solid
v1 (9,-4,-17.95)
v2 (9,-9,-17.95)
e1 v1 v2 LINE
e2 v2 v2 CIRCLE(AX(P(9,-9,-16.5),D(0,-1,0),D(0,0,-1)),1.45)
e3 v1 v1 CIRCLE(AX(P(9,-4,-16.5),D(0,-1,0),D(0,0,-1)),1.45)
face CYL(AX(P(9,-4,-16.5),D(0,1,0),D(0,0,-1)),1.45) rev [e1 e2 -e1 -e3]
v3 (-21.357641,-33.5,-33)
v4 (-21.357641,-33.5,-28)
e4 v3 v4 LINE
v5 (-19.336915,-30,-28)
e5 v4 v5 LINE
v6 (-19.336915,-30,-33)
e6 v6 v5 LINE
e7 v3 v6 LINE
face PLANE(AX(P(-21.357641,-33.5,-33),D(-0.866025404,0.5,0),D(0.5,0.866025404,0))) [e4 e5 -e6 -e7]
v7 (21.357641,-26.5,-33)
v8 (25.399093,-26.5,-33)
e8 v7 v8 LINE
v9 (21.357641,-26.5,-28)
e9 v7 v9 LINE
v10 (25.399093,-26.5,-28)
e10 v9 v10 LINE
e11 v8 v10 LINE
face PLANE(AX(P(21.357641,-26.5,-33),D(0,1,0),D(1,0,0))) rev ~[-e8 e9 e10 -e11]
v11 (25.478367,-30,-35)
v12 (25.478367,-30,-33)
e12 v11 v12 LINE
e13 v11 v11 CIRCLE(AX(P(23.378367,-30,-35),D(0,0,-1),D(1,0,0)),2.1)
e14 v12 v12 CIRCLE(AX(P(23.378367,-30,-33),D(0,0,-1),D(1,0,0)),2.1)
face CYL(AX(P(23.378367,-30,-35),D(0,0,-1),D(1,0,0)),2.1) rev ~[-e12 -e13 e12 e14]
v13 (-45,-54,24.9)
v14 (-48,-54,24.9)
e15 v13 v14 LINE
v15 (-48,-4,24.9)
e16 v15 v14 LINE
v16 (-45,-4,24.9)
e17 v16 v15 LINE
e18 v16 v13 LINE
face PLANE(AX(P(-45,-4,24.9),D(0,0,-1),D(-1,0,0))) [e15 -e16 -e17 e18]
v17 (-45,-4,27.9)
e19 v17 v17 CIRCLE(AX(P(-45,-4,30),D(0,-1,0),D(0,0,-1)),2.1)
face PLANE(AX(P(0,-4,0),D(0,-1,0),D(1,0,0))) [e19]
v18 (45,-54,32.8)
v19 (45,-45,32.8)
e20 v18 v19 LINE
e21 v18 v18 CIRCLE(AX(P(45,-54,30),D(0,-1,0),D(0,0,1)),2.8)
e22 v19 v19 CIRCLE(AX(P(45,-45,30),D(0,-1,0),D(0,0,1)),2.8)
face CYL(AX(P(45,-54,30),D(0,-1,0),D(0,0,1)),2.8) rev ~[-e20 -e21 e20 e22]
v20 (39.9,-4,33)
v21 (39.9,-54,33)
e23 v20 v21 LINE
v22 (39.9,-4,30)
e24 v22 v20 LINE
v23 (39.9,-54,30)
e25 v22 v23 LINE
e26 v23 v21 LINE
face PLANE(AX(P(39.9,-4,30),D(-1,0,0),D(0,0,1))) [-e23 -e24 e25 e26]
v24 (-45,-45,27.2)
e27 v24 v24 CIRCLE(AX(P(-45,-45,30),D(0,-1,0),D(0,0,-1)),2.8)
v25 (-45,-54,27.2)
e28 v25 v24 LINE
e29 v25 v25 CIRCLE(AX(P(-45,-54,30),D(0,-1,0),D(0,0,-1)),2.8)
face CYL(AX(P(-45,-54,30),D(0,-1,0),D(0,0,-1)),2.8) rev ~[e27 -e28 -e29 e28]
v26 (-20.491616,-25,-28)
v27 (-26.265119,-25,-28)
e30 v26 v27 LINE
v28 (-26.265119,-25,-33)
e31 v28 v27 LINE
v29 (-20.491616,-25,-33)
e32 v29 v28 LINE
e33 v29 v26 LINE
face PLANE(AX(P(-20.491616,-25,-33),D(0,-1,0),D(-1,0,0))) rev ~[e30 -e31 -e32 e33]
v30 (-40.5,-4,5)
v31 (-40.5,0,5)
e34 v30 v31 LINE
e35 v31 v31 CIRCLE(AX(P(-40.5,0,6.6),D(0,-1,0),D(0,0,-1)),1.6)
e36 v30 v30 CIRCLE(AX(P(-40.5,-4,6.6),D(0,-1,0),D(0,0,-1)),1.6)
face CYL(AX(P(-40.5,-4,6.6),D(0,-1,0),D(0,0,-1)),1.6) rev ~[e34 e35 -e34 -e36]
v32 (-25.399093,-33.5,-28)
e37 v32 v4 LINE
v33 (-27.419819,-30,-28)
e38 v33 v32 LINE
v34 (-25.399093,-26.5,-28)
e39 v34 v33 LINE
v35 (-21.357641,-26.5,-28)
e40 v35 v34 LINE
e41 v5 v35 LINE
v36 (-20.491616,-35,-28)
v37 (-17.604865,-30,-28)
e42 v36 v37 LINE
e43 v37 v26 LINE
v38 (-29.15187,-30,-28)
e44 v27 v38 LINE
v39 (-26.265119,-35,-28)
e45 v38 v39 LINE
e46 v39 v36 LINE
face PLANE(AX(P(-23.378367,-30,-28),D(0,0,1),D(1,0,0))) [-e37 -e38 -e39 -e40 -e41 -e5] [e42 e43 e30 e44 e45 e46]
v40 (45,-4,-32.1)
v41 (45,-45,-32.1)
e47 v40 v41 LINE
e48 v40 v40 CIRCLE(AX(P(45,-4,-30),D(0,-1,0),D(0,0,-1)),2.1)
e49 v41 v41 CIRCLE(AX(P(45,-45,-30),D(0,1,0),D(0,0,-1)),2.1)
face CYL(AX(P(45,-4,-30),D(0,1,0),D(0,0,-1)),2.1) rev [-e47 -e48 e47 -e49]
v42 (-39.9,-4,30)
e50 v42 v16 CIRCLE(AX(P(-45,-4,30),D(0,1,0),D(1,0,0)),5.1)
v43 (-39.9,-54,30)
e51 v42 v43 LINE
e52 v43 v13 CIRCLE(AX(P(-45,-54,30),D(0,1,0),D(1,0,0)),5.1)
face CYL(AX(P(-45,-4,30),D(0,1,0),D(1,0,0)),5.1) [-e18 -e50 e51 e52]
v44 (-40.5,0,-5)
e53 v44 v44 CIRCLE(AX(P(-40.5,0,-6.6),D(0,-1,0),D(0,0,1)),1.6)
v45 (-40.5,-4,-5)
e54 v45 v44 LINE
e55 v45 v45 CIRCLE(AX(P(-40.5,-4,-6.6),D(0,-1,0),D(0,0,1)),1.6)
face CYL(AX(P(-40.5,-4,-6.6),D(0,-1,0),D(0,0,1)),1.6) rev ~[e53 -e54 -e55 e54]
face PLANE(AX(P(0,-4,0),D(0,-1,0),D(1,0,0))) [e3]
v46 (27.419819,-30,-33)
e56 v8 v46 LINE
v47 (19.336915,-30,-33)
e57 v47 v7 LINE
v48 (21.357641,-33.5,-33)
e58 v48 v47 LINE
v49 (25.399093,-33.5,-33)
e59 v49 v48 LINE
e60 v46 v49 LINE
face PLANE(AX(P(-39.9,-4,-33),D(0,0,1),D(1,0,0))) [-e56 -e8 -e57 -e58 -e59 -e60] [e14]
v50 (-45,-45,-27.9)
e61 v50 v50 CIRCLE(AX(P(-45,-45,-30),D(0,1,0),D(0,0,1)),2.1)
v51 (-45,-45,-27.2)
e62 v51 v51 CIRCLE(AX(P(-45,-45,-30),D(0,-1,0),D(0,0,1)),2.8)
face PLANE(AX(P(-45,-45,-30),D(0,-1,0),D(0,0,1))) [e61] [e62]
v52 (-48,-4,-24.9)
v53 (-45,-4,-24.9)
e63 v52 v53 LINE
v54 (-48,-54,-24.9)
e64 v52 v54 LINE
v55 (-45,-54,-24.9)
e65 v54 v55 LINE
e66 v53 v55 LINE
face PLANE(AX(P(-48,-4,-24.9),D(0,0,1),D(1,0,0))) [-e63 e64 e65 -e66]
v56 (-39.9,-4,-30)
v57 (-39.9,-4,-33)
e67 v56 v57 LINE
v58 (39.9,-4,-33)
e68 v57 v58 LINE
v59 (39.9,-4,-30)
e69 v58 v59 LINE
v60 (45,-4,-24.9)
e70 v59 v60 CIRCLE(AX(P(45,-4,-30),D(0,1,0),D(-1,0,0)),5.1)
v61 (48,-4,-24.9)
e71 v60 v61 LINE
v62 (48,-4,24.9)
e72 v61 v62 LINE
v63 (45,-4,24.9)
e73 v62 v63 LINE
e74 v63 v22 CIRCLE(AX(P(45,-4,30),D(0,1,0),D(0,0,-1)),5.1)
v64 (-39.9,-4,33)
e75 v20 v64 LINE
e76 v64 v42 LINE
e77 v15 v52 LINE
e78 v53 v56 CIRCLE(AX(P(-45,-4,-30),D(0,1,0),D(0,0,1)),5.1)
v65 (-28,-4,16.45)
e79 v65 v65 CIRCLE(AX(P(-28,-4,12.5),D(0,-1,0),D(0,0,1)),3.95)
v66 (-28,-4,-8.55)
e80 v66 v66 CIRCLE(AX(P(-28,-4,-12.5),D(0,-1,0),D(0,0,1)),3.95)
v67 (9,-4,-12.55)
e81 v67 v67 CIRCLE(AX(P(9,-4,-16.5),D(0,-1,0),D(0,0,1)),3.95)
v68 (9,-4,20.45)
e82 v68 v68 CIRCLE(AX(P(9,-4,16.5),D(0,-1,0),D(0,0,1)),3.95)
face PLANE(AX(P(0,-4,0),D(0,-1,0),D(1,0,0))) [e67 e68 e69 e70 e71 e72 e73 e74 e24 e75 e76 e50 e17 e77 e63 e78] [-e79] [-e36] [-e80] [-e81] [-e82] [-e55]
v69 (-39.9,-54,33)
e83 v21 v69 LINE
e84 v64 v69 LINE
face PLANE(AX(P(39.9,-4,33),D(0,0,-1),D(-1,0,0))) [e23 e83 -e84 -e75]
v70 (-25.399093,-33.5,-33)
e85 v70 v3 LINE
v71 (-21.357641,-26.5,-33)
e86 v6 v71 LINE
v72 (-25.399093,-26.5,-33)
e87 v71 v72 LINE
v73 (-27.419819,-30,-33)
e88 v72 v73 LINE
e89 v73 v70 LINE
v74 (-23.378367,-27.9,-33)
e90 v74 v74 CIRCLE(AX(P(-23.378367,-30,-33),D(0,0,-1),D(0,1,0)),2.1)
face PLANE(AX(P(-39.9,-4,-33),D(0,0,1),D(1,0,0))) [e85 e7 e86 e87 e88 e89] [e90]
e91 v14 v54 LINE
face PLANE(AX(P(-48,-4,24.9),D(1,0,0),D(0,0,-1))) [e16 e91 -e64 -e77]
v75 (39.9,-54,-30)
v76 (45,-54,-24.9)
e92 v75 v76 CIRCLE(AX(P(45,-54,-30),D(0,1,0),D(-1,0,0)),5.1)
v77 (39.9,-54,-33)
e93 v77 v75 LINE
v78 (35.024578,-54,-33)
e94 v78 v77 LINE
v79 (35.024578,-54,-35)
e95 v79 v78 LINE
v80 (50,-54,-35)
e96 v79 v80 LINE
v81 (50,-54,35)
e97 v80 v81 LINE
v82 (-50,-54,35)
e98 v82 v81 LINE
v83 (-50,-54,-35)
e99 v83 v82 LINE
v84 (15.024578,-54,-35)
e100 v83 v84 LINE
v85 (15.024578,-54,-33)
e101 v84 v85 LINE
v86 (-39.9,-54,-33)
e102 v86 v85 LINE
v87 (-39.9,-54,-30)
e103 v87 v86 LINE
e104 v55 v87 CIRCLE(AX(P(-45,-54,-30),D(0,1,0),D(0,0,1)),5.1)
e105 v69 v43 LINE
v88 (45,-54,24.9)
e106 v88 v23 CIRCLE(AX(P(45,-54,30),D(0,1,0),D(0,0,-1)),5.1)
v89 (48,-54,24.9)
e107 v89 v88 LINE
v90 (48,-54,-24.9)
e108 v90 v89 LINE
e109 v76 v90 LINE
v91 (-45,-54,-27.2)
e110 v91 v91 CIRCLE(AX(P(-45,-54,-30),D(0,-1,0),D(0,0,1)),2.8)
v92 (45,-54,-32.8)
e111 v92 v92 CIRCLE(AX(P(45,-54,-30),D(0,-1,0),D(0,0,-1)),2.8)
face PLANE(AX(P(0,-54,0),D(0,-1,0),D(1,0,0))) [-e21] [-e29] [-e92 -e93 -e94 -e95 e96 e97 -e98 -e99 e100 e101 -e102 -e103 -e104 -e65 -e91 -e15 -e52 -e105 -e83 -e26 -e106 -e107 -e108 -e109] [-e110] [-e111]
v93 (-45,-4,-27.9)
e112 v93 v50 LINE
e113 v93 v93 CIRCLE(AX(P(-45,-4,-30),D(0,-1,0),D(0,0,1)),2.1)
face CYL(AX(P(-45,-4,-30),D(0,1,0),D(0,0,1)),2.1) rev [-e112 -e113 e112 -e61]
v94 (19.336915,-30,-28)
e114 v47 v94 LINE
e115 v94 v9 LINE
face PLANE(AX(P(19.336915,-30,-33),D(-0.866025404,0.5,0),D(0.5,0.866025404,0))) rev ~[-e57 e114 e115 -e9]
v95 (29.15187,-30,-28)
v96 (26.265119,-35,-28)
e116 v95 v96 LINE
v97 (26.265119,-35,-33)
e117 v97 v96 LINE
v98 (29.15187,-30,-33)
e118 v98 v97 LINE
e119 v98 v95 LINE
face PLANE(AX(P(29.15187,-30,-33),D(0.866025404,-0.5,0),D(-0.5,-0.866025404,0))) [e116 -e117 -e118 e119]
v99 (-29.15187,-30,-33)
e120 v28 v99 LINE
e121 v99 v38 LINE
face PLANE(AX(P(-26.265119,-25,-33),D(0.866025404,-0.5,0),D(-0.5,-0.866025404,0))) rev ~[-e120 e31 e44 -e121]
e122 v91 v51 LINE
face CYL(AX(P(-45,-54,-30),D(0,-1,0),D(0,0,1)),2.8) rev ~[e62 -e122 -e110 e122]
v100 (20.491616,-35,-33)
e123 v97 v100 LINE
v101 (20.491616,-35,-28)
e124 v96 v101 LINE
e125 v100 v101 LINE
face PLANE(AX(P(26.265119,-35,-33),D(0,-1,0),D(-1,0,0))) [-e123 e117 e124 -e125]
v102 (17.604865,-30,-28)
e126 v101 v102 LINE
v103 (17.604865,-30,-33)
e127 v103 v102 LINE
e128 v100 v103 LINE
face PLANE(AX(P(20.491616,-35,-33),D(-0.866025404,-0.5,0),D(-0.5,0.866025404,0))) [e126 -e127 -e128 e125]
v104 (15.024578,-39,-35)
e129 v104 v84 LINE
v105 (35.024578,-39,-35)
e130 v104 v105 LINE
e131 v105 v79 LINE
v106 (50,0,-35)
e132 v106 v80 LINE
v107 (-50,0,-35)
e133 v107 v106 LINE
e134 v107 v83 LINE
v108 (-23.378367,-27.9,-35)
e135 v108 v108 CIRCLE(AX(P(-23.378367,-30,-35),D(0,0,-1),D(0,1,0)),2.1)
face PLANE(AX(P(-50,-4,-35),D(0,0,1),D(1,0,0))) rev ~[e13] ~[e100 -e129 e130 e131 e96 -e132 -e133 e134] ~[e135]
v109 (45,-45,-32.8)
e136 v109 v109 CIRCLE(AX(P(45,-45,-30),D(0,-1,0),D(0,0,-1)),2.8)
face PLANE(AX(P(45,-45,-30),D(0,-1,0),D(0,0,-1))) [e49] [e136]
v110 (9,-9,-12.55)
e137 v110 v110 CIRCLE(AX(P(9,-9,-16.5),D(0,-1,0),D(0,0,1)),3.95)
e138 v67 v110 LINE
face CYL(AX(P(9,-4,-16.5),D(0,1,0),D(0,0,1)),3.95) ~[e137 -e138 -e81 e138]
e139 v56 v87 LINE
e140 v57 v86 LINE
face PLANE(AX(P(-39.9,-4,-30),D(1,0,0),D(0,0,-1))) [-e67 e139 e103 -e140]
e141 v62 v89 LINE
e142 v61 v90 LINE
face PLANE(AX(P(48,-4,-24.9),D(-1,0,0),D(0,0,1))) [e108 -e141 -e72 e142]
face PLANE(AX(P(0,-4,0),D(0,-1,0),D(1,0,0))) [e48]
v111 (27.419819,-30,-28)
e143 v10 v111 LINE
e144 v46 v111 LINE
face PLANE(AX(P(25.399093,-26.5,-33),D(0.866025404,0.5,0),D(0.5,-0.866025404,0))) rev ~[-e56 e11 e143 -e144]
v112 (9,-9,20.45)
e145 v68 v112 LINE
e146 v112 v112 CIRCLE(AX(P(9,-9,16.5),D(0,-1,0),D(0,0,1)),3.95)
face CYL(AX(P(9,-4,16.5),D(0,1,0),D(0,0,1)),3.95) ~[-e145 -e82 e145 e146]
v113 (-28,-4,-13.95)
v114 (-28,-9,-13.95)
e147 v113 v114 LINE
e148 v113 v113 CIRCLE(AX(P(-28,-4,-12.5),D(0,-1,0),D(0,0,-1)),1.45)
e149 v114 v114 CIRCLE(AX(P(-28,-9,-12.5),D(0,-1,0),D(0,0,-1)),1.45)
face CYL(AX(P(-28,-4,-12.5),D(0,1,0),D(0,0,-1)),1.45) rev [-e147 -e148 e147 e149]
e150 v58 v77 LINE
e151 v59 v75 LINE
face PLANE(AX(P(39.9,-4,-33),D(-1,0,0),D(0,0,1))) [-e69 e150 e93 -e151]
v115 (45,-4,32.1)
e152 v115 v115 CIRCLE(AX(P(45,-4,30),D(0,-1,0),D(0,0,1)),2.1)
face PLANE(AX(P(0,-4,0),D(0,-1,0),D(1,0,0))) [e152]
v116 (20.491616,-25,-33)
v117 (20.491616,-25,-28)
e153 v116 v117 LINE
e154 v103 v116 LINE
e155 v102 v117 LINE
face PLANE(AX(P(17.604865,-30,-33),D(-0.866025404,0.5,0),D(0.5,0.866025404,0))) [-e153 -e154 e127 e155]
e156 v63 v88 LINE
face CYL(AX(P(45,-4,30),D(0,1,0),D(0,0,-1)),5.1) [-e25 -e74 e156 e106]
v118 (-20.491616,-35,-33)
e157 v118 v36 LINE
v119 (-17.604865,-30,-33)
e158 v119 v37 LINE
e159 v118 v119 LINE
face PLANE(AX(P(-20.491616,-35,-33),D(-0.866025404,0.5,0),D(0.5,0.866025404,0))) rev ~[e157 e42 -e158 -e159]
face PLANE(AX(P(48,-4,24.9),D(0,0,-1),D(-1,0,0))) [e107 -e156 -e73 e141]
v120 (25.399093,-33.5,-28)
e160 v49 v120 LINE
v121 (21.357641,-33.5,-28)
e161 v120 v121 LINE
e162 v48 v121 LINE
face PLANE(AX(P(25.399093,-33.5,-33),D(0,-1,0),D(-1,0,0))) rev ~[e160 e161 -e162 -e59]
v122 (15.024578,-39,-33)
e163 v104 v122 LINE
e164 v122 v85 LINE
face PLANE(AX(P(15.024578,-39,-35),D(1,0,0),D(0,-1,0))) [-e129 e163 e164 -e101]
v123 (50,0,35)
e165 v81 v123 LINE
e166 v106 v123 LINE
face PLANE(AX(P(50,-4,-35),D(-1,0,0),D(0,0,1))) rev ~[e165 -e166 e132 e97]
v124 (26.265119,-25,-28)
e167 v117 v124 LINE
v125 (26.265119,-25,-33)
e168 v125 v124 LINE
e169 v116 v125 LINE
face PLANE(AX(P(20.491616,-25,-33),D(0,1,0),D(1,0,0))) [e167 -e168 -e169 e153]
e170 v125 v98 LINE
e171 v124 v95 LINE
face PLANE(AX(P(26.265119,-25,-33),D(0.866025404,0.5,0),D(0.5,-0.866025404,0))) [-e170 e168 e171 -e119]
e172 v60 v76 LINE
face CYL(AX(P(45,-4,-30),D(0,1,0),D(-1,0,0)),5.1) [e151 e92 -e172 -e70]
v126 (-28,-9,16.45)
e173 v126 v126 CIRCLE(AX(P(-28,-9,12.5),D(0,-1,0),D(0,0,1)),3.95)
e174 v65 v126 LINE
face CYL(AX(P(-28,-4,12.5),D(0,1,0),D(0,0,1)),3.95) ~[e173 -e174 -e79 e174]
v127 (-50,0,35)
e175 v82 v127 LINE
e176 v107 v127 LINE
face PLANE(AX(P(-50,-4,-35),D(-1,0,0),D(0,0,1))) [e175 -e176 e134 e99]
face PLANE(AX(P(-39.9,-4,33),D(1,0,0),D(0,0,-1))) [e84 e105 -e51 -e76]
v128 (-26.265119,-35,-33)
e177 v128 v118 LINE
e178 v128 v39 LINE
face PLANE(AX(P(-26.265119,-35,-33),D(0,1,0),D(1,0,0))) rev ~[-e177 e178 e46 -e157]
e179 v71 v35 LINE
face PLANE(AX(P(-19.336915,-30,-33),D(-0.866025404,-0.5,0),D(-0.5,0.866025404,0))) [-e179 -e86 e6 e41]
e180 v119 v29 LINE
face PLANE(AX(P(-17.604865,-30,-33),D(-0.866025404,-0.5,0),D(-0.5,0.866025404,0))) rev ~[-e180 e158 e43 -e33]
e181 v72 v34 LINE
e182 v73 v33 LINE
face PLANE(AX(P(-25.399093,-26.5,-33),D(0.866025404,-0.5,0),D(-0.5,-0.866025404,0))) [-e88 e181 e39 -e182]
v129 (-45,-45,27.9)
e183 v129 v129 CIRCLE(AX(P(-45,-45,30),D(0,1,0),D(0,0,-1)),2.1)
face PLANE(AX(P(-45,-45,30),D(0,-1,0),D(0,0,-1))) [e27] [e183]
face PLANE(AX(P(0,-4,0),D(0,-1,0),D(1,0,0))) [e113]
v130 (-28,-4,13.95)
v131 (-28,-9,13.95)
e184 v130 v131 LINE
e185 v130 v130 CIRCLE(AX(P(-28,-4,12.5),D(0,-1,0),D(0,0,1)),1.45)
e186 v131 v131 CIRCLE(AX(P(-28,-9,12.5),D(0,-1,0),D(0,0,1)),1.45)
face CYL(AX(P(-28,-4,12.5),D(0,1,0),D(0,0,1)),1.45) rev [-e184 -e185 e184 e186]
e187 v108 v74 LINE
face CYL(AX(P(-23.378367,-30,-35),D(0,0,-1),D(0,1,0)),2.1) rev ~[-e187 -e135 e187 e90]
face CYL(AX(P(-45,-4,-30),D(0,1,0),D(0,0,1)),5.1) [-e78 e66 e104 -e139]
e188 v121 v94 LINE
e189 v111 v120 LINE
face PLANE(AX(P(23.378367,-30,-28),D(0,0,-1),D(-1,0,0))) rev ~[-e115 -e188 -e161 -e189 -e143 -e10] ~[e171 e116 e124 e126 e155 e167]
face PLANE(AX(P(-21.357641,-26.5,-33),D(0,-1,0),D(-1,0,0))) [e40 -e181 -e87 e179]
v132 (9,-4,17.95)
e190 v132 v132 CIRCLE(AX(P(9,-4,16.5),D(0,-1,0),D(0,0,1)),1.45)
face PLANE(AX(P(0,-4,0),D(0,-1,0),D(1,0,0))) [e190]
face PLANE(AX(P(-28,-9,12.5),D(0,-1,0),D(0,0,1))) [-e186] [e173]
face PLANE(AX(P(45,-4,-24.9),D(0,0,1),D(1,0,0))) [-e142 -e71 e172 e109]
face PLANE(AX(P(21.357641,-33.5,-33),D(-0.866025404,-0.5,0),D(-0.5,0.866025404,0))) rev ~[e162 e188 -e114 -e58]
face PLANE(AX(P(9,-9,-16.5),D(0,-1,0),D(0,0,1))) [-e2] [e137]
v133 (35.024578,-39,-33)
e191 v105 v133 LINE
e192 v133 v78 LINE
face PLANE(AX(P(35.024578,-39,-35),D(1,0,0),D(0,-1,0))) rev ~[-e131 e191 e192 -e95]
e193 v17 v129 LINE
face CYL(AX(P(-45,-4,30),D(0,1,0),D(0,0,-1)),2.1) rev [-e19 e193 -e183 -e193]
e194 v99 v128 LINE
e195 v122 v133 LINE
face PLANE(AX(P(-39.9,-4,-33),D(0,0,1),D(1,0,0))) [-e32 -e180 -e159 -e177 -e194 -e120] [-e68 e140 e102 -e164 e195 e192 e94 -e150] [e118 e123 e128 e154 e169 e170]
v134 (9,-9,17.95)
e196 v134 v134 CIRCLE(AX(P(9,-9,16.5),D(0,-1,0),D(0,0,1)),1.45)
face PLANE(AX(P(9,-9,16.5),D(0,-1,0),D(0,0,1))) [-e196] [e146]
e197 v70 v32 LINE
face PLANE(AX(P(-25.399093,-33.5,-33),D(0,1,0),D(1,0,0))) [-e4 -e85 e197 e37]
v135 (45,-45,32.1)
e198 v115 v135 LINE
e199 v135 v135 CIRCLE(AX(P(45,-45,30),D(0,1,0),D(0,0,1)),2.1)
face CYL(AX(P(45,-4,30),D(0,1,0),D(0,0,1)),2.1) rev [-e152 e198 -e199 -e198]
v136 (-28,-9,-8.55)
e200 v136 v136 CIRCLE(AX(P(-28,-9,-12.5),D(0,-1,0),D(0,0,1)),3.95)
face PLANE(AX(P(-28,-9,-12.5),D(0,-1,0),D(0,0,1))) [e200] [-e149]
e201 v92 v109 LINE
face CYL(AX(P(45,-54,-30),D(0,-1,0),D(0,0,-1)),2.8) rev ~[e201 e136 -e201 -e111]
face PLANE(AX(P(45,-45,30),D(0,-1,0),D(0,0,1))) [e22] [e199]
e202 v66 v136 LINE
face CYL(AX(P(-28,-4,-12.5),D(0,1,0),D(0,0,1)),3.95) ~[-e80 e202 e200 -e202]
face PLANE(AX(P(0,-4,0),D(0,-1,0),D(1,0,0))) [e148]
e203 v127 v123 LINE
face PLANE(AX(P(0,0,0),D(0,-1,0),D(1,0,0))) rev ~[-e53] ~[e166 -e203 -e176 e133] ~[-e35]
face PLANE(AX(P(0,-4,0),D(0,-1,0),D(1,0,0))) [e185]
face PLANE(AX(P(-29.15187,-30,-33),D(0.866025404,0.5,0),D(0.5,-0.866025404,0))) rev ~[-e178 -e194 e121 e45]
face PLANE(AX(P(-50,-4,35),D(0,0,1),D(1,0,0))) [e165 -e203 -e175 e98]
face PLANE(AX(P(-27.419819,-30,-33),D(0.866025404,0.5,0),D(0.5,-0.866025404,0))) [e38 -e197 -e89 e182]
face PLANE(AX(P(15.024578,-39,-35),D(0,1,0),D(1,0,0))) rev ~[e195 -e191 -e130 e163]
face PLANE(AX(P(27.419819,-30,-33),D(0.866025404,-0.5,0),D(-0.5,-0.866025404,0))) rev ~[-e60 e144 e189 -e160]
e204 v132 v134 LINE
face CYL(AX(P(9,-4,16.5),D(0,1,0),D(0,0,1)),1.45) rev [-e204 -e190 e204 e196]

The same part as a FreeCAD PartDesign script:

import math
import FreeCAD as App
import Part
import Sketcher
Q = App.Units.Quantity

doc = App.newDocument("Part")
body = doc.addObject("PartDesign::Body", "Body")

sketch1 = body.newObject("Sketcher::SketchObject", "Sketch")
sketch1.AttachmentSupport = (doc.getObject("XZ_Plane"), [""])
sketch1.MapMode = "FlatFace"
sketch1.addGeometry(Part.LineSegment(App.Vector(-50, 35, 0), App.Vector(-50, -35, 0)), False)
sketch1.addGeometry(Part.LineSegment(App.Vector(-50, -35, 0), App.Vector(50, -35, 0)), False)
sketch1.addGeometry(Part.LineSegment(App.Vector(50, -35, 0), App.Vector(50, 35, 0)), False)
sketch1.addGeometry(Part.LineSegment(App.Vector(50, 35, 0), App.Vector(-50, 35, 0)), False)
sketch1.addConstraint(Sketcher.Constraint("Coincident", 0, 2, 1, 1))
sketch1.addConstraint(Sketcher.Constraint("Coincident", 1, 2, 2, 1))
sketch1.addConstraint(Sketcher.Constraint("Coincident", 2, 2, 3, 1))
sketch1.addConstraint(Sketcher.Constraint("Coincident", 3, 2, 0, 1))
sketch1.addConstraint(Sketcher.Constraint("Vertical", 0))
sketch1.addConstraint(Sketcher.Constraint("Horizontal", 1))
sketch1.addConstraint(Sketcher.Constraint("Vertical", 2))
sketch1.addConstraint(Sketcher.Constraint("Horizontal", 3))
sketch1.addConstraint(Sketcher.Constraint("Symmetric", 0, 2, 2, 2, -1, 1))
sketch1.addConstraint(Sketcher.Constraint("DistanceX", 1, 1, 1, 2, 100.0))
sketch1.addConstraint(Sketcher.Constraint("DistanceY", 0, 2, 0, 1, 70.0))
pad1 = body.newObject("PartDesign::Pad", "Pad")
pad1.Profile = sketch1
pad1.Length = 4

sketch2 = body.newObject("Sketcher::SketchObject", "Sketch001")
sketch2.AttachmentSupport = (doc.getObject("XZ_Plane"), [""])
sketch2.MapMode = "FlatFace"
sketch2.AttachmentOffset = App.Placement(App.Vector(0, 0, 4), App.Rotation())
sketch2.addGeometry(Part.LineSegment(App.Vector(-50, 35, 0), App.Vector(-50, -35, 0)), False)
sketch2.addGeometry(Part.LineSegment(App.Vector(-50, -35, 0), App.Vector(50, -35, 0)), False)
sketch2.addGeometry(Part.LineSegment(App.Vector(50, -35, 0), App.Vector(50, 35, 0)), False)
sketch2.addGeometry(Part.LineSegment(App.Vector(50, 35, 0), App.Vector(-50, 35, 0)), False)
sketch2.addGeometry(Part.Circle(App.Vector(-45, -30, 0), App.Vector(0, 0, 1), 2.1), False)
sketch2.addGeometry(Part.Circle(App.Vector(45, -30, 0), App.Vector(0, 0, 1), 2.1), False)
sketch2.addGeometry(Part.Circle(App.Vector(-45, 30, 0), App.Vector(0, 0, 1), 2.1), False)
sketch2.addGeometry(Part.LineSegment(App.Vector(-48, -24.9, 0), App.Vector(-48, 24.9, 0)), False)
sketch2.addGeometry(Part.LineSegment(App.Vector(-48, 24.9, 0), App.Vector(-45, 24.9, 0)), False)
sketch2.addGeometry(Part.ArcOfCircle(Part.Circle(App.Vector(-45, 30, 0), App.Vector(0, 0, 1), 5.1), math.radians(-90), math.radians(0)), False)
sketch2.addGeometry(Part.LineSegment(App.Vector(-39.9, 30, 0), App.Vector(-39.9, 33, 0)), False)
sketch2.addGeometry(Part.LineSegment(App.Vector(-39.9, 33, 0), App.Vector(39.9, 33, 0)), False)
sketch2.addGeometry(Part.LineSegment(App.Vector(39.9, 33, 0), App.Vector(39.9, 30, 0)), False)
sketch2.addGeometry(Part.ArcOfCircle(Part.Circle(App.Vector(45, 30, 0), App.Vector(0, 0, 1), 5.1), math.radians(180), math.radians(270)), False)
sketch2.addGeometry(Part.LineSegment(App.Vector(45, 24.9, 0), App.Vector(48, 24.9, 0)), False)
sketch2.addGeometry(Part.LineSegment(App.Vector(48, 24.9, 0), App.Vector(48, -24.9, 0)), False)
sketch2.addGeometry(Part.LineSegment(App.Vector(48, -24.9, 0), App.Vector(45, -24.9, 0)), False)
sketch2.addGeometry(Part.ArcOfCircle(Part.Circle(App.Vector(45, -30, 0), App.Vector(0, 0, 1), 5.1), math.radians(90), math.radians(180)), False)
sketch2.addGeometry(Part.LineSegment(App.Vector(39.9, -30, 0), App.Vector(39.9, -33, 0)), False)
sketch2.addGeometry(Part.LineSegment(App.Vector(39.9, -33, 0), App.Vector(-39.9, -33, 0)), False)
sketch2.addGeometry(Part.LineSegment(App.Vector(-39.9, -33, 0), App.Vector(-39.9, -30, 0)), False)
sketch2.addGeometry(Part.ArcOfCircle(Part.Circle(App.Vector(-45, -30, 0), App.Vector(0, 0, 1), 5.1), math.radians(0), math.radians(90)), False)
sketch2.addGeometry(Part.LineSegment(App.Vector(-45, -24.9, 0), App.Vector(-48, -24.9, 0)), False)
sketch2.addGeometry(Part.Circle(App.Vector(45, 30, 0), App.Vector(0, 0, 1), 2.1), False)
sketch2.addConstraint(Sketcher.Constraint("Coincident", 0, 2, 1, 1))
sketch2.addConstraint(Sketcher.Constraint("Coincident", 1, 2, 2, 1))
sketch2.addConstraint(Sketcher.Constraint("Coincident", 2, 2, 3, 1))
sketch2.addConstraint(Sketcher.Constraint("Coincident", 3, 2, 0, 1))
sketch2.addConstraint(Sketcher.Constraint("Coincident", 7, 2, 8, 1))
sketch2.addConstraint(Sketcher.Constraint("Tangent", 8, 2, 9, 1))
sketch2.addConstraint(Sketcher.Constraint("Tangent", 9, 2, 10, 1))
sketch2.addConstraint(Sketcher.Constraint("Coincident", 10, 2, 11, 1))
sketch2.addConstraint(Sketcher.Constraint("Coincident", 11, 2, 12, 1))
sketch2.addConstraint(Sketcher.Constraint("Tangent", 12, 2, 13, 1))
sketch2.addConstraint(Sketcher.Constraint("Tangent", 13, 2, 14, 1))
sketch2.addConstraint(Sketcher.Constraint("Coincident", 14, 2, 15, 1))
sketch2.addConstraint(Sketcher.Constraint("Coincident", 15, 2, 16, 1))
sketch2.addConstraint(Sketcher.Constraint("Tangent", 16, 2, 17, 1))
sketch2.addConstraint(Sketcher.Constraint("Tangent", 17, 2, 18, 1))
sketch2.addConstraint(Sketcher.Constraint("Coincident", 18, 2, 19, 1))
sketch2.addConstraint(Sketcher.Constraint("Coincident", 19, 2, 20, 1))
sketch2.addConstraint(Sketcher.Constraint("Tangent", 20, 2, 21, 1))
sketch2.addConstraint(Sketcher.Constraint("Tangent", 21, 2, 22, 1))
sketch2.addConstraint(Sketcher.Constraint("Coincident", 22, 2, 7, 1))
sketch2.addConstraint(Sketcher.Constraint("Vertical", 0))
sketch2.addConstraint(Sketcher.Constraint("Horizontal", 1))
sketch2.addConstraint(Sketcher.Constraint("Vertical", 2))
sketch2.addConstraint(Sketcher.Constraint("Horizontal", 3))
sketch2.addConstraint(Sketcher.Constraint("Vertical", 7))
sketch2.addConstraint(Sketcher.Constraint("Horizontal", 8))
sketch2.addConstraint(Sketcher.Constraint("Vertical", 10))
sketch2.addConstraint(Sketcher.Constraint("Horizontal", 11))
sketch2.addConstraint(Sketcher.Constraint("Vertical", 12))
sketch2.addConstraint(Sketcher.Constraint("Horizontal", 14))
sketch2.addConstraint(Sketcher.Constraint("Vertical", 15))
sketch2.addConstraint(Sketcher.Constraint("Horizontal", 16))
sketch2.addConstraint(Sketcher.Constraint("Vertical", 18))
sketch2.addConstraint(Sketcher.Constraint("Horizontal", 19))
sketch2.addConstraint(Sketcher.Constraint("Vertical", 20))
sketch2.addConstraint(Sketcher.Constraint("Horizontal", 22))
sketch2.addConstraint(Sketcher.Constraint("Coincident", 9, 3, 6, 3))
sketch2.addConstraint(Sketcher.Constraint("Coincident", 17, 3, 5, 3))
sketch2.addConstraint(Sketcher.Constraint("Coincident", 21, 3, 4, 3))
sketch2.addConstraint(Sketcher.Constraint("Coincident", 23, 3, 13, 3))
sketch2.addConstraint(Sketcher.Constraint("Equal", 4, 5))
sketch2.addConstraint(Sketcher.Constraint("Equal", 5, 6))
sketch2.addConstraint(Sketcher.Constraint("Equal", 9, 13))
sketch2.addConstraint(Sketcher.Constraint("Equal", 13, 17))
sketch2.addConstraint(Sketcher.Constraint("Equal", 17, 21))
sketch2.addConstraint(Sketcher.Constraint("Equal", 6, 23))
sketch2.addConstraint(Sketcher.Constraint("Symmetric", 5, 3, 6, 3, -1, 1))
sketch2.addConstraint(Sketcher.Constraint("Symmetric", 4, 3, 13, 3, -1, 1))
sketch2.addConstraint(Sketcher.Constraint("Symmetric", 0, 2, 2, 2, -1, 1))
sketch2.addConstraint(Sketcher.Constraint("Symmetric", 4, 3, 5, 3, -2))
sketch2.addConstraint(Sketcher.Constraint("Equal", 8, 14))
sketch2.addConstraint(Sketcher.Constraint("Equal", 22, 10))
sketch2.addConstraint(Sketcher.Constraint("Equal", 12, 18))
sketch2.addConstraint(Sketcher.Constraint("Diameter", 4, 4.2))
sketch2.addConstraint(Sketcher.Constraint("Radius", 9, 5.1))
sketch2.addConstraint(Sketcher.Constraint("DistanceX", 1, 1, 1, 2, 100.0))
sketch2.addConstraint(Sketcher.Constraint("DistanceX", 8, 1, 8, 2, 3.0))
sketch2.addConstraint(Sketcher.Constraint("DistanceY", 0, 2, 0, 1, 70.0))
sketch2.addConstraint(Sketcher.Constraint("DistanceX", 11, 1, 11, 2, 79.8))
sketch2.addConstraint(Sketcher.Constraint("DistanceY", 7, 1, 7, 2, 49.8))
pad2 = body.newObject("PartDesign::Pad", "Pad001")
pad2.Profile = sketch2
pad2.Length = 50

sketch3 = body.newObject("Sketcher::SketchObject", "Sketch002")
sketch3.AttachmentSupport = (doc.getObject("XZ_Plane"), [""])
sketch3.MapMode = "FlatFace"
sketch3.AttachmentOffset = App.Placement(App.Vector(0, 0, 54), App.Rotation())
sketch3.addGeometry(Part.Circle(App.Vector(-45, 30, 0), App.Vector(0, 0, 1), 2.8), False)
sketch3.addGeometry(Part.Circle(App.Vector(45, 30, 0), App.Vector(0, 0, 1), 2.8), False)
sketch3.addGeometry(Part.Circle(App.Vector(45, -30, 0), App.Vector(0, 0, 1), 2.8), False)
sketch3.addGeometry(Part.Circle(App.Vector(-45, -30, 0), App.Vector(0, 0, 1), 2.8), False)
sketch3.addConstraint(Sketcher.Constraint("Equal", 0, 1))
sketch3.addConstraint(Sketcher.Constraint("Equal", 1, 2))
sketch3.addConstraint(Sketcher.Constraint("Equal", 2, 3))
sketch3.addConstraint(Sketcher.Constraint("Symmetric", 0, 3, 2, 3, -1, 1))
sketch3.addConstraint(Sketcher.Constraint("Symmetric", 1, 3, 3, 3, -1, 1))
sketch3.addConstraint(Sketcher.Constraint("Symmetric", 0, 3, 1, 3, -2))
sketch3.addConstraint(Sketcher.Constraint("Diameter", 0, 5.6))
sketch3.addConstraint(Sketcher.Constraint("DistanceX", 0, 3, -1, 1, 45.0))
sketch3.addConstraint(Sketcher.Constraint("DistanceY", -1, 1, 0, 3, 30.0))
pocket1 = body.newObject("PartDesign::Pocket", "Pocket")
pocket1.Profile = sketch3
pocket1.Length = 9

sketch4 = body.newObject("Sketcher::SketchObject", "Sketch003")
sketch4.AttachmentSupport = (doc.getObject("XZ_Plane"), [""])
sketch4.MapMode = "FlatFace"
sketch4.AttachmentOffset = App.Placement(App.Vector(0, 0, 4), App.Rotation())
sketch4.addGeometry(Part.Circle(App.Vector(-40.5, 6.6, 0), App.Vector(0, 0, 1), 1.6), False)
sketch4.addConstraint(Sketcher.Constraint("Diameter", 0, 3.2))
sketch4.addConstraint(Sketcher.Constraint("DistanceX", 0, 3, -1, 1, 40.5))
sketch4.addConstraint(Sketcher.Constraint("DistanceY", -1, 1, 0, 3, 6.6))
pocket2 = body.newObject("PartDesign::Pocket", "Pocket001")
pocket2.Profile = sketch4
pocket2.Type = "UpToFirst"

sketch5 = body.newObject("Sketcher::SketchObject", "Sketch004")
sketch5.AttachmentSupport = (doc.getObject("XZ_Plane"), [""])
sketch5.MapMode = "FlatFace"
sketch5.AttachmentOffset = App.Placement(App.Vector(0, 0, 4), App.Rotation())
sketch5.addGeometry(Part.Circle(App.Vector(-40.5, -6.6, 0), App.Vector(0, 0, 1), 1.6), False)
sketch5.addConstraint(Sketcher.Constraint("Diameter", 0, 3.2))
sketch5.addConstraint(Sketcher.Constraint("DistanceX", 0, 3, -1, 1, 40.5))
sketch5.addConstraint(Sketcher.Constraint("DistanceY", 0, 3, -1, 1, 6.6))
pocket3 = body.newObject("PartDesign::Pocket", "Pocket002")
pocket3.Profile = sketch5
pocket3.Type = "UpToFirst"

sketch6 = body.newObject("Sketcher::SketchObject", "Sketch005")
sketch6.AttachmentSupport = (doc.getObject("XY_Plane"), [""])
sketch6.MapMode = "FlatFace"
sketch6.AttachmentOffset = App.Placement(App.Vector(0, 0, -35), App.Rotation())
sketch6.addGeometry(Part.Circle(App.Vector(-23.378367, -30, 0), App.Vector(0, 0, 1), 2.1), False)
sketch6.addGeometry(Part.Circle(App.Vector(23.378367, -30, 0), App.Vector(0, 0, 1), 2.1), False)
sketch6.addGeometry(Part.LineSegment(App.Vector(15.024578, -54, 0), App.Vector(15.024578, -39, 0)), False)
sketch6.addGeometry(Part.LineSegment(App.Vector(15.024578, -39, 0), App.Vector(35.024578, -39, 0)), False)
sketch6.addGeometry(Part.LineSegment(App.Vector(35.024578, -39, 0), App.Vector(35.024578, -54, 0)), False)
sketch6.addGeometry(Part.LineSegment(App.Vector(35.024578, -54, 0), App.Vector(15.024578, -54, 0)), False)
sketch6.addConstraint(Sketcher.Constraint("Coincident", 2, 2, 3, 1))
sketch6.addConstraint(Sketcher.Constraint("Coincident", 3, 2, 4, 1))
sketch6.addConstraint(Sketcher.Constraint("Coincident", 4, 2, 5, 1))
sketch6.addConstraint(Sketcher.Constraint("Coincident", 5, 2, 2, 1))
sketch6.addConstraint(Sketcher.Constraint("Vertical", 2))
sketch6.addConstraint(Sketcher.Constraint("Horizontal", 3))
sketch6.addConstraint(Sketcher.Constraint("Vertical", 4))
sketch6.addConstraint(Sketcher.Constraint("Horizontal", 5))
sketch6.addConstraint(Sketcher.Constraint("Equal", 0, 1))
sketch6.addConstraint(Sketcher.Constraint("Symmetric", 0, 3, 1, 3, -2))
sketch6.addConstraint(Sketcher.Constraint("Diameter", 0, 4.2))
sketch6.addConstraint(Sketcher.Constraint("DistanceX", 3, 1, 3, 2, 20.0))
sketch6.addConstraint(Sketcher.Constraint("DistanceY", 2, 1, 2, 2, 15.0))
sketch6.addConstraint(Sketcher.Constraint("DistanceY", 0, 3, -1, 1, 30.0))
sketch6.addConstraint(Sketcher.Constraint("DistanceY", 2, 2, -1, 1, 39.0))
sketch6.addConstraint(Sketcher.Constraint("DistanceX", -1, 1, 2, 2, 15.024578))
sketch6.addConstraint(Sketcher.Constraint("DistanceX", 2, 2, 1, 3, 8.353789))
pocket4 = body.newObject("PartDesign::Pocket", "Pocket003")
pocket4.Profile = sketch6
pocket4.Length = 2
pocket4.Reversed = True

sketch7 = body.newObject("Sketcher::SketchObject", "Sketch006")
sketch7.AttachmentSupport = (doc.getObject("XY_Plane"), [""])
sketch7.MapMode = "FlatFace"
sketch7.AttachmentOffset = App.Placement(App.Vector(0, 0, -33), App.Rotation())
sketch7.addGeometry(Part.LineSegment(App.Vector(-17.604865, -30, 0), App.Vector(-20.491616, -25, 0)), False)
sketch7.addGeometry(Part.LineSegment(App.Vector(-20.491616, -25, 0), App.Vector(-26.265119, -25, 0)), False)
sketch7.addGeometry(Part.LineSegment(App.Vector(-26.265119, -25, 0), App.Vector(-29.15187, -30, 0)), False)
sketch7.addGeometry(Part.LineSegment(App.Vector(-29.15187, -30, 0), App.Vector(-26.265119, -35, 0)), False)
sketch7.addGeometry(Part.LineSegment(App.Vector(-26.265119, -35, 0), App.Vector(-20.491616, -35, 0)), False)
sketch7.addGeometry(Part.LineSegment(App.Vector(-20.491616, -35, 0), App.Vector(-17.604865, -30, 0)), False)
sketch7.addGeometry(Part.LineSegment(App.Vector(-21.357641, -26.5, 0), App.Vector(-19.336915, -30, 0)), False)
sketch7.addGeometry(Part.LineSegment(App.Vector(-19.336915, -30, 0), App.Vector(-21.357641, -33.5, 0)), False)
sketch7.addGeometry(Part.LineSegment(App.Vector(-21.357641, -33.5, 0), App.Vector(-25.399093, -33.5, 0)), False)
sketch7.addGeometry(Part.LineSegment(App.Vector(-25.399093, -33.5, 0), App.Vector(-27.419819, -30, 0)), False)
sketch7.addGeometry(Part.LineSegment(App.Vector(-27.419819, -30, 0), App.Vector(-25.399093, -26.5, 0)), False)
sketch7.addGeometry(Part.LineSegment(App.Vector(-25.399093, -26.5, 0), App.Vector(-21.357641, -26.5, 0)), False)
sketch7.addGeometry(Part.LineSegment(App.Vector(17.604865, -30, 0), App.Vector(20.491616, -35, 0)), False)
sketch7.addGeometry(Part.LineSegment(App.Vector(20.491616, -35, 0), App.Vector(26.265119, -35, 0)), False)
sketch7.addGeometry(Part.LineSegment(App.Vector(26.265119, -35, 0), App.Vector(29.15187, -30, 0)), False)
sketch7.addGeometry(Part.LineSegment(App.Vector(29.15187, -30, 0), App.Vector(26.265119, -25, 0)), False)
sketch7.addGeometry(Part.LineSegment(App.Vector(26.265119, -25, 0), App.Vector(20.491616, -25, 0)), False)
sketch7.addGeometry(Part.LineSegment(App.Vector(20.491616, -25, 0), App.Vector(17.604865, -30, 0)), False)
sketch7.addGeometry(Part.LineSegment(App.Vector(21.357641, -33.5, 0), App.Vector(19.336915, -30, 0)), False)
sketch7.addGeometry(Part.LineSegment(App.Vector(19.336915, -30, 0), App.Vector(21.357641, -26.5, 0)), False)
sketch7.addGeometry(Part.LineSegment(App.Vector(21.357641, -26.5, 0), App.Vector(25.399093, -26.5, 0)), False)
sketch7.addGeometry(Part.LineSegment(App.Vector(25.399093, -26.5, 0), App.Vector(27.419819, -30, 0)), False)
sketch7.addGeometry(Part.LineSegment(App.Vector(27.419819, -30, 0), App.Vector(25.399093, -33.5, 0)), False)
sketch7.addGeometry(Part.LineSegment(App.Vector(25.399093, -33.5, 0), App.Vector(21.357641, -33.5, 0)), False)
sketch7.addConstraint(Sketcher.Constraint("Coincident", 0, 2, 1, 1))
sketch7.addConstraint(Sketcher.Constraint("Coincident", 1, 2, 2, 1))
sketch7.addConstraint(Sketcher.Constraint("Coincident", 2, 2, 3, 1))
sketch7.addConstraint(Sketcher.Constraint("Coincident", 3, 2, 4, 1))
sketch7.addConstraint(Sketcher.Constraint("Coincident", 4, 2, 5, 1))
sketch7.addConstraint(Sketcher.Constraint("Coincident", 5, 2, 0, 1))
sketch7.addConstraint(Sketcher.Constraint("Coincident", 6, 2, 7, 1))
sketch7.addConstraint(Sketcher.Constraint("Coincident", 7, 2, 8, 1))
sketch7.addConstraint(Sketcher.Constraint("Coincident", 8, 2, 9, 1))
sketch7.addConstraint(Sketcher.Constraint("Coincident", 9, 2, 10, 1))
sketch7.addConstraint(Sketcher.Constraint("Coincident", 10, 2, 11, 1))
sketch7.addConstraint(Sketcher.Constraint("Coincident", 11, 2, 6, 1))
sketch7.addConstraint(Sketcher.Constraint("Coincident", 12, 2, 13, 1))
sketch7.addConstraint(Sketcher.Constraint("Coincident", 13, 2, 14, 1))
sketch7.addConstraint(Sketcher.Constraint("Coincident", 14, 2, 15, 1))
sketch7.addConstraint(Sketcher.Constraint("Coincident", 15, 2, 16, 1))
sketch7.addConstraint(Sketcher.Constraint("Coincident", 16, 2, 17, 1))
sketch7.addConstraint(Sketcher.Constraint("Coincident", 17, 2, 12, 1))
sketch7.addConstraint(Sketcher.Constraint("Coincident", 18, 2, 19, 1))
sketch7.addConstraint(Sketcher.Constraint("Coincident", 19, 2, 20, 1))
sketch7.addConstraint(Sketcher.Constraint("Coincident", 20, 2, 21, 1))
sketch7.addConstraint(Sketcher.Constraint("Coincident", 21, 2, 22, 1))
sketch7.addConstraint(Sketcher.Constraint("Coincident", 22, 2, 23, 1))
sketch7.addConstraint(Sketcher.Constraint("Coincident", 23, 2, 18, 1))
sketch7.addConstraint(Sketcher.Constraint("Horizontal", 1))
sketch7.addConstraint(Sketcher.Constraint("Horizontal", 4))
sketch7.addConstraint(Sketcher.Constraint("Horizontal", 8))
sketch7.addConstraint(Sketcher.Constraint("Horizontal", 11))
sketch7.addConstraint(Sketcher.Constraint("Horizontal", 13))
sketch7.addConstraint(Sketcher.Constraint("Horizontal", 16))
sketch7.addConstraint(Sketcher.Constraint("Horizontal", 20))
sketch7.addConstraint(Sketcher.Constraint("Horizontal", 23))
sketch7.addConstraint(Sketcher.Constraint("Symmetric", 4, 2, 12, 2, -2))
sketch7.addConstraint(Sketcher.Constraint("Symmetric", 2, 2, 14, 2, -2))
sketch7.addConstraint(Sketcher.Constraint("Symmetric", 1, 2, 15, 2, -2))
sketch7.addConstraint(Sketcher.Constraint("Symmetric", 5, 2, 17, 2, -2))
sketch7.addConstraint(Sketcher.Constraint("Symmetric", 6, 2, 18, 2, -2))
sketch7.addConstraint(Sketcher.Constraint("Symmetric", 11, 2, 19, 2, -2))
sketch7.addConstraint(Sketcher.Constraint("Symmetric", 9, 2, 21, 2, -2))
sketch7.addConstraint(Sketcher.Constraint("Symmetric", 8, 2, 22, 2, -2))
sketch7.addConstraint(Sketcher.Constraint("Parallel", 0, 3))
sketch7.addConstraint(Sketcher.Constraint("Parallel", 2, 5))
sketch7.addConstraint(Sketcher.Constraint("Parallel", 3, 6))
sketch7.addConstraint(Sketcher.Constraint("Parallel", 5, 7))
sketch7.addConstraint(Sketcher.Constraint("Parallel", 6, 9))
sketch7.addConstraint(Sketcher.Constraint("Parallel", 7, 10))
sketch7.addConstraint(Sketcher.Constraint("Parallel", 9, 12))
sketch7.addConstraint(Sketcher.Constraint("Parallel", 10, 14))
sketch7.addConstraint(Sketcher.Constraint("Parallel", 14, 17))
sketch7.addConstraint(Sketcher.Constraint("Parallel", 15, 18))
sketch7.addConstraint(Sketcher.Constraint("Parallel", 18, 21))
sketch7.addConstraint(Sketcher.Constraint("Horizontal", 2, 2, 5, 2))
sketch7.addConstraint(Sketcher.Constraint("Horizontal", 5, 2, 6, 2))
sketch7.addConstraint(Sketcher.Constraint("Horizontal", 6, 2, 9, 2))
sketch7.addConstraint(Sketcher.Constraint("Vertical", 1, 2, 3, 2))
sketch7.addConstraint(Sketcher.Constraint("Vertical", 8, 2, 10, 2))
sketch7.addConstraint(Sketcher.Constraint("Angle", 0, Q("120 deg")))
sketch7.addConstraint(Sketcher.Constraint("DistanceY", 0, 2, -1, 1, 25.0))
sketch7.addConstraint(Sketcher.Constraint("DistanceY", 2, 2, -1, 1, 30.0))
sketch7.addConstraint(Sketcher.Constraint("DistanceY", 8, 2, 10, 2, 7.0))
sketch7.addConstraint(Sketcher.Constraint("DistanceX", 8, 2, 8, 1, 4.041452))
sketch7.addConstraint(Sketcher.Constraint("DistanceX", 0, 2, 6, 2, 1.154701))
sketch7.addConstraint(Sketcher.Constraint("DistanceX", 9, 2, 1, 2, 1.154701))
sketch7.addConstraint(Sketcher.Constraint("DistanceX", 1, 2, -1, 1, 26.265119))
pad3 = body.newObject("PartDesign::Pad", "Pad002")
pad3.Profile = sketch7
pad3.Length = 5

sketch8 = body.newObject("Sketcher::SketchObject", "Sketch007")
sketch8.AttachmentSupport = (doc.getObject("XZ_Plane"), [""])
sketch8.MapMode = "FlatFace"
sketch8.AttachmentOffset = App.Placement(App.Vector(0, 0, 4), App.Rotation())
sketch8.addGeometry(Part.Circle(App.Vector(-28, -12.5, 0), App.Vector(0, 0, 1), 3.95), False)
sketch8.addGeometry(Part.Circle(App.Vector(-28, -12.5, 0), App.Vector(0, 0, 1), 1.45), False)
sketch8.addGeometry(Part.Circle(App.Vector(9, -16.5, 0), App.Vector(0, 0, 1), 3.95), False)
sketch8.addGeometry(Part.Circle(App.Vector(9, -16.5, 0), App.Vector(0, 0, 1), 1.45), False)
sketch8.addGeometry(Part.Circle(App.Vector(9, 16.5, 0), App.Vector(0, 0, 1), 3.95), False)
sketch8.addGeometry(Part.Circle(App.Vector(9, 16.5, 0), App.Vector(0, 0, 1), 1.45), False)
sketch8.addGeometry(Part.Circle(App.Vector(-28, 12.5, 0), App.Vector(0, 0, 1), 3.95), False)
sketch8.addGeometry(Part.Circle(App.Vector(-28, 12.5, 0), App.Vector(0, 0, 1), 1.45), False)
sketch8.addConstraint(Sketcher.Constraint("Coincident", 1, 3, 0, 3))
sketch8.addConstraint(Sketcher.Constraint("Coincident", 3, 3, 2, 3))
sketch8.addConstraint(Sketcher.Constraint("Coincident", 5, 3, 4, 3))
sketch8.addConstraint(Sketcher.Constraint("Coincident", 7, 3, 6, 3))
sketch8.addConstraint(Sketcher.Constraint("Equal", 0, 2))
sketch8.addConstraint(Sketcher.Constraint("Equal", 1, 3))
sketch8.addConstraint(Sketcher.Constraint("Equal", 2, 4))
sketch8.addConstraint(Sketcher.Constraint("Equal", 3, 5))
sketch8.addConstraint(Sketcher.Constraint("Equal", 4, 6))
sketch8.addConstraint(Sketcher.Constraint("Equal", 5, 7))
sketch8.addConstraint(Sketcher.Constraint("Symmetric", 2, 3, 4, 3, -1))
sketch8.addConstraint(Sketcher.Constraint("Symmetric", 0, 3, 6, 3, -1))
sketch8.addConstraint(Sketcher.Constraint("Diameter", 0, 7.9))
sketch8.addConstraint(Sketcher.Constraint("Diameter", 1, 2.9))
sketch8.addConstraint(Sketcher.Constraint("DistanceX", 0, 3, -1, 1, 28.0))
sketch8.addConstraint(Sketcher.Constraint("DistanceX", -1, 1, 2, 3, 9.0))
sketch8.addConstraint(Sketcher.Constraint("DistanceY", 2, 3, 0, 3, 4.0))
sketch8.addConstraint(Sketcher.Constraint("DistanceY", 2, 3, 4, 3, 33.0))
pad4 = body.newObject("PartDesign::Pad", "Pad003")
pad4.Profile = sketch8
pad4.Length = 5

doc.recompute()
